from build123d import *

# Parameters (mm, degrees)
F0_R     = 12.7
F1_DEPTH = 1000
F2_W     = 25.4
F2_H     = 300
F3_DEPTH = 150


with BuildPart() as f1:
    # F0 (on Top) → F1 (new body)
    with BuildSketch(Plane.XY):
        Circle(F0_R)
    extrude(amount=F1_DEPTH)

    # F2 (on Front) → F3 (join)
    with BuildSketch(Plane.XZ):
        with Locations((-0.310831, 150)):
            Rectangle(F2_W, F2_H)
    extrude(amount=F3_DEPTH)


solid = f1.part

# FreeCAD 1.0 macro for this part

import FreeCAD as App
import Part
import Sketcher
from FreeCAD import Vector


def add_polygon(sketch, points):
    """Adds a closed chain of lines whose ends are joined by coincident constraints."""
    first, n = sketch.GeometryCount, len(points)
    for a, b in zip(points, points[1:] + points[:1]):
        sketch.addGeometry(Part.LineSegment(App.Vector(*a, 0), App.Vector(*b, 0)), False)
    for i in range(n):
        sketch.addConstraint(Sketcher.Constraint("Coincident", first + i, 2, first + (i + 1) % n, 1))

doc = App.newDocument("Part")
body = doc.addObject("PartDesign::Body", "Body")

# Sketch on XY plane
sketch1 = body.newObject("Sketcher::SketchObject", "Sketch")
sketch1.AttachmentSupport = (doc.getObject("XY_Plane"), [""])
sketch1.MapMode = "FlatFace"
sketch1.addGeometry(Part.Circle(Vector(0, 0, 0), Vector(0, 0, 1), 13), False)
sketch1.addConstraint([
    Sketcher.Constraint("Coincident", 0, 3, -1, 1),
    Sketcher.Constraint("Diameter", 0, 25.4),
])
pad1 = body.newObject("PartDesign::Pad", "Pad")
pad1.Profile = sketch1
pad1.Length = 1000

# Sketch on XZ plane
sketch2 = body.newObject("Sketcher::SketchObject", "Sketch001")
sketch2.AttachmentSupport = (doc.getObject("XZ_Plane"), [""])
sketch2.MapMode = "FlatFace"
add_polygon(sketch2, [(-13, 300), (-13, 0), (12, 0), (12, 300)])  # lines 0-3
sketch2.addConstraint([
    Sketcher.Constraint("Vertical", 0),
    Sketcher.Constraint("Horizontal", 1),
    Sketcher.Constraint("Vertical", 2),
    Sketcher.Constraint("Horizontal", 3),
    Sketcher.Constraint("PointOnObject", 0, 2, -1),
    Sketcher.Constraint("DistanceY", 0, 2, 0, 1, 300.0),
    Sketcher.Constraint("DistanceX", 1, 1, 1, 2, 25.4),
    Sketcher.Constraint("DistanceX", 0, 2, -1, 1, 13.010831),
])
pad2 = body.newObject("PartDesign::Pad", "Pad001")
pad2.Profile = sketch2
pad2.Length = 150

doc.recompute()
